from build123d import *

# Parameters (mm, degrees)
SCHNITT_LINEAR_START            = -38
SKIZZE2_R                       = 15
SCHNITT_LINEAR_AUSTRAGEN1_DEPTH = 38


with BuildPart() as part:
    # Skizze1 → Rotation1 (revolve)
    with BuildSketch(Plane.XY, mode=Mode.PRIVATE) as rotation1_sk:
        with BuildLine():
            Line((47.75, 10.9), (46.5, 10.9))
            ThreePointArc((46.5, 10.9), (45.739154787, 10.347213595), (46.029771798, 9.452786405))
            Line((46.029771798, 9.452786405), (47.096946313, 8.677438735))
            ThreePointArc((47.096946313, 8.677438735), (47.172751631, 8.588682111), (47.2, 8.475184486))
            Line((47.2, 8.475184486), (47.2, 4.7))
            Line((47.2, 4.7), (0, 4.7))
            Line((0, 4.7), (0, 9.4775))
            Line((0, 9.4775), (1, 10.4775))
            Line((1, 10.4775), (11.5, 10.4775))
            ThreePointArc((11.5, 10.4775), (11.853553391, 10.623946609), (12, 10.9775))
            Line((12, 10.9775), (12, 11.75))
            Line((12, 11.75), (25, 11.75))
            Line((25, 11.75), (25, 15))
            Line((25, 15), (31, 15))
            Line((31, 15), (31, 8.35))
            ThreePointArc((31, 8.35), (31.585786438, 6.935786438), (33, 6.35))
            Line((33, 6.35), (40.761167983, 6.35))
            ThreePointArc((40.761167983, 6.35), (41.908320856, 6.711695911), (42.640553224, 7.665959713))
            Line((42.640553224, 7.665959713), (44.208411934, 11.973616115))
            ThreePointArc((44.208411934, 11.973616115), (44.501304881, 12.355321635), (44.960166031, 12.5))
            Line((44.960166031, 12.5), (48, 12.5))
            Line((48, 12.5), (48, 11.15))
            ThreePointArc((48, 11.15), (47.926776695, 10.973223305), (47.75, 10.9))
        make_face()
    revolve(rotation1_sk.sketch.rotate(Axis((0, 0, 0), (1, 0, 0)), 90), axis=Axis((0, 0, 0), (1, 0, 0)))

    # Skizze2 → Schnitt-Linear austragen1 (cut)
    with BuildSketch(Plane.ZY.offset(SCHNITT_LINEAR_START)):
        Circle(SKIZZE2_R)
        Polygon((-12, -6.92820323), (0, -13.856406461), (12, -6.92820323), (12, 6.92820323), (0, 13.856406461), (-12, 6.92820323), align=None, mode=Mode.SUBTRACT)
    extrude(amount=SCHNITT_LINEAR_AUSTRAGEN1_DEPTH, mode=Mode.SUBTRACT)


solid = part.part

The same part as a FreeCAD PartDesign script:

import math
import FreeCAD as App
import Part
import Sketcher

V = App.Vector
Q = App.Units.Quantity

doc = App.newDocument("Part")
body = doc.addObject("PartDesign::Body", "Body")

sketch1 = body.newObject("Sketcher::SketchObject", "Sketch")
sketch1.AttachmentSupport = (doc.getObject("XY_Plane"), [""])
sketch1.MapMode = "FlatFace"
sketch1.addGeometry([
    Part.LineSegment(V(46.5, 10.9, 0), V(47.75, 10.9, 0)),
    Part.ArcOfCircle(Part.Circle(V(47.75, 11.15, 0), V(0, 0, 1), 0.25), math.radians(-90), math.radians(0)),
    Part.LineSegment(V(48, 11.15, 0), V(48, 12.5, 0)),
    Part.LineSegment(V(48, 12.5, 0), V(44.96, 12.5, 0)),
    Part.ArcOfCircle(Part.Circle(V(44.96, 11.7, 0), V(0, 0, 1), 0.8), math.radians(90), math.radians(160)),
    Part.LineSegment(V(44.21, 11.97, 0), V(42.64, 7.67, 0)),
    Part.ArcOfCircle(Part.Circle(V(40.76, 8.35, 0), V(0, 0, 1), 2), math.radians(-90), math.radians(-20)),
    Part.LineSegment(V(40.76, 6.35, 0), V(33, 6.35, 0)),
    Part.ArcOfCircle(Part.Circle(V(33, 8.35, 0), V(0, 0, 1), 2), math.radians(-180), math.radians(-90)),
    Part.LineSegment(V(31, 8.35, 0), V(31, 15, 0)),
    Part.LineSegment(V(31, 15, 0), V(25, 15, 0)),
    Part.LineSegment(V(25, 15, 0), V(25, 11.75, 0)),
    Part.LineSegment(V(25, 11.75, 0), V(12, 11.75, 0)),
    Part.LineSegment(V(12, 11.75, 0), V(12, 10.98, 0)),
    Part.ArcOfCircle(Part.Circle(V(11.5, 10.98, 0), V(0, 0, 1), 0.5), math.radians(-90), math.radians(0)),
    Part.LineSegment(V(11.5, 10.48, 0), V(1, 10.48, 0)),
    Part.LineSegment(V(1, 10.48, 0), V(0, 9.48, 0)),
    Part.LineSegment(V(0, 9.48, 0), V(0, 4.7, 0)),
    Part.LineSegment(V(0, 4.7, 0), V(47.2, 4.7, 0)),
    Part.LineSegment(V(47.2, 4.7, 0), V(47.2, 8.48, 0)),
    Part.ArcOfCircle(Part.Circle(V(46.95, 8.48, 0), V(0, 0, 1), 0.25), math.radians(0), math.radians(54)),
    Part.LineSegment(V(47.1, 8.68, 0), V(46.03, 9.45, 0)),
    Part.ArcOfCircle(Part.Circle(V(46.5, 10.1, 0), V(0, 0, 1), 0.8), math.radians(90), math.radians(234)),
], False)
sketch1.addConstraint([
    Sketcher.Constraint("Tangent", 0, 2, 1, 1),
    Sketcher.Constraint("Tangent", 1, 2, 2, 1),
    Sketcher.Constraint("Coincident", 2, 2, 3, 1),
    Sketcher.Constraint("Tangent", 3, 2, 4, 1),
    Sketcher.Constraint("Tangent", 4, 2, 5, 1),
    Sketcher.Constraint("Tangent", 5, 2, 6, 2),
    Sketcher.Constraint("Tangent", 6, 1, 7, 1),
    Sketcher.Constraint("Tangent", 7, 2, 8, 2),
    Sketcher.Constraint("Tangent", 8, 1, 9, 1),
    Sketcher.Constraint("Coincident", 9, 2, 10, 1),
    Sketcher.Constraint("Coincident", 10, 2, 11, 1),
    Sketcher.Constraint("Coincident", 11, 2, 12, 1),
    Sketcher.Constraint("Coincident", 12, 2, 13, 1),
    Sketcher.Constraint("Tangent", 13, 2, 14, 2),
    Sketcher.Constraint("Tangent", 14, 1, 15, 1),
    Sketcher.Constraint("Coincident", 15, 2, 16, 1),
    Sketcher.Constraint("Coincident", 16, 2, 17, 1),
    Sketcher.Constraint("Coincident", 17, 2, 18, 1),
    Sketcher.Constraint("Coincident", 18, 2, 19, 1),
    Sketcher.Constraint("Tangent", 19, 2, 20, 1),
    Sketcher.Constraint("Tangent", 20, 2, 21, 1),
    Sketcher.Constraint("Tangent", 21, 2, 22, 2),
    Sketcher.Constraint("Tangent", 22, 1, 0, 1),
    Sketcher.Constraint("Horizontal", 0),
    Sketcher.Constraint("Vertical", 2),
    Sketcher.Constraint("Horizontal", 3),
    Sketcher.Constraint("Horizontal", 7),
    Sketcher.Constraint("Vertical", 9),
    Sketcher.Constraint("Horizontal", 10),
    Sketcher.Constraint("Vertical", 11),
    Sketcher.Constraint("Horizontal", 12),
    Sketcher.Constraint("Vertical", 13),
    Sketcher.Constraint("Horizontal", 15),
    Sketcher.Constraint("Vertical", 17),
    Sketcher.Constraint("Horizontal", 18),
    Sketcher.Constraint("Vertical", 19),
    Sketcher.Constraint("Equal", 6, 8),
    Sketcher.Constraint("Equal", 1, 20),
    Sketcher.Constraint("Equal", 4, 22),
    Sketcher.Constraint("PointOnObject", 16, 2, -2),
    Sketcher.Constraint("Radius", 6, Q("2 mm")),
    Sketcher.Constraint("Radius", 4, Q("0.8 mm")),
    Sketcher.Constraint("Radius", 14, Q("0.5 mm")),
    Sketcher.Constraint("DistanceX", 10, 2, 10, 1, Q("6 mm")),
    Sketcher.Constraint("DistanceX", 12, 2, 12, 1, Q("13 mm")),
    Sketcher.Constraint("Angle", 5, Q("-110 deg")),
    Sketcher.Constraint("Angle", 16, Q("-135 deg")),
    Sketcher.Constraint("Angle", 21, Q("144 deg")),
    Sketcher.Constraint("Radius", 1, Q("0.25 mm")),
    Sketcher.Constraint("DistanceX", 15, 2, 15, 1, Q("10.5 mm")),
    Sketcher.Constraint("DistanceX", 18, 1, 18, 2, Q("47.2 mm")),
    Sketcher.Constraint("DistanceX", -1, 1, 8, 3, Q("33 mm")),
    Sketcher.Constraint("DistanceX", -1, 1, 1, 2, Q("48 mm")),
    Sketcher.Constraint("DistanceY", -1, 1, 9, 2, Q("15 mm")),
    Sketcher.Constraint("DistanceX", 0, 1, 0, 2, Q("1.25 mm")),
    Sketcher.Constraint("DistanceY", 2, 1, 2, 2, Q("1.35 mm")),
    Sketcher.Constraint("DistanceY", 9, 1, 9, 2, Q("6.65 mm")),
    Sketcher.Constraint("DistanceY", 11, 2, 11, 1, Q("3.25 mm")),
    Sketcher.Constraint("DistanceY", -1, 1, 4, 3, Q("11.7 mm")),
    Sketcher.Constraint("DistanceY", -1, 1, 17, 2, Q("4.7 mm")),
    Sketcher.Constraint("DistanceY", 13, 2, 13, 1, Q("0.7725 mm")),
    Sketcher.Constraint("DistanceX", 3, 2, 3, 1, Q("3.039834 mm")),
])
revolution = body.newObject("PartDesign::Revolution", "Revolution")
revolution.Profile = sketch1
revolution.ReferenceAxis = (sketch1, ["H_Axis"])
revolution.Angle = 360

sketch2 = body.newObject("Sketcher::SketchObject", "Sketch001")
sketch2.AttachmentSupport = (doc.getObject("YZ_Plane"), [""])
sketch2.MapMode = "FlatFace"
sketch2.AttachmentOffset = App.Placement(V(0, 0, 38), App.Rotation())
sketch2.addGeometry([
    Part.Circle(V(0, 0, 0), V(0, 0, 1), 15),
    Part.LineSegment(V(-14, 0, 0), V(-7, -12, 0)),
    Part.LineSegment(V(-7, -12, 0), V(7, -12, 0)),
    Part.LineSegment(V(7, -12, 0), V(14, 0, 0)),
    Part.LineSegment(V(14, 0, 0), V(7, 12, 0)),
    Part.LineSegment(V(7, 12, 0), V(-7, 12, 0)),
    Part.LineSegment(V(-7, 12, 0), V(-14, 0, 0)),
], False)
sketch2.addConstraint([
    Sketcher.Constraint("Coincident", 1, 2, 2, 1),
    Sketcher.Constraint("Coincident", 2, 2, 3, 1),
    Sketcher.Constraint("Coincident", 3, 2, 4, 1),
    Sketcher.Constraint("Coincident", 4, 2, 5, 1),
    Sketcher.Constraint("Coincident", 5, 2, 6, 1),
    Sketcher.Constraint("Coincident", 6, 2, 1, 1),
    Sketcher.Constraint("Horizontal", 2),
    Sketcher.Constraint("Horizontal", 5),
    Sketcher.Constraint("Coincident", 0, 3, -1, 1),
    Sketcher.Constraint("Symmetric", 1, 2, 4, 2, -1, 1),
    Sketcher.Constraint("Symmetric", 3, 2, 6, 2, -1, 1),
    Sketcher.Constraint("PointOnObject", 3, 2, -1),
    Sketcher.Constraint("Parallel", 3, 6),
    Sketcher.Constraint("Vertical", 2, 2, 4, 2),
    Sketcher.Constraint("Diameter", 0, Q("30 mm")),
    Sketcher.Constraint("Angle", 1, Q("-60 deg")),
    Sketcher.Constraint("DistanceY", 1, 2, -1, 1, Q("12 mm")),
    Sketcher.Constraint("DistanceX", 2, 1, 2, 2, Q("13.856406 mm")),
])
pocket1 = body.newObject("PartDesign::Pocket", "Pocket")
pocket1.Profile = sketch2
pocket1.Length = 38

doc.recompute()
